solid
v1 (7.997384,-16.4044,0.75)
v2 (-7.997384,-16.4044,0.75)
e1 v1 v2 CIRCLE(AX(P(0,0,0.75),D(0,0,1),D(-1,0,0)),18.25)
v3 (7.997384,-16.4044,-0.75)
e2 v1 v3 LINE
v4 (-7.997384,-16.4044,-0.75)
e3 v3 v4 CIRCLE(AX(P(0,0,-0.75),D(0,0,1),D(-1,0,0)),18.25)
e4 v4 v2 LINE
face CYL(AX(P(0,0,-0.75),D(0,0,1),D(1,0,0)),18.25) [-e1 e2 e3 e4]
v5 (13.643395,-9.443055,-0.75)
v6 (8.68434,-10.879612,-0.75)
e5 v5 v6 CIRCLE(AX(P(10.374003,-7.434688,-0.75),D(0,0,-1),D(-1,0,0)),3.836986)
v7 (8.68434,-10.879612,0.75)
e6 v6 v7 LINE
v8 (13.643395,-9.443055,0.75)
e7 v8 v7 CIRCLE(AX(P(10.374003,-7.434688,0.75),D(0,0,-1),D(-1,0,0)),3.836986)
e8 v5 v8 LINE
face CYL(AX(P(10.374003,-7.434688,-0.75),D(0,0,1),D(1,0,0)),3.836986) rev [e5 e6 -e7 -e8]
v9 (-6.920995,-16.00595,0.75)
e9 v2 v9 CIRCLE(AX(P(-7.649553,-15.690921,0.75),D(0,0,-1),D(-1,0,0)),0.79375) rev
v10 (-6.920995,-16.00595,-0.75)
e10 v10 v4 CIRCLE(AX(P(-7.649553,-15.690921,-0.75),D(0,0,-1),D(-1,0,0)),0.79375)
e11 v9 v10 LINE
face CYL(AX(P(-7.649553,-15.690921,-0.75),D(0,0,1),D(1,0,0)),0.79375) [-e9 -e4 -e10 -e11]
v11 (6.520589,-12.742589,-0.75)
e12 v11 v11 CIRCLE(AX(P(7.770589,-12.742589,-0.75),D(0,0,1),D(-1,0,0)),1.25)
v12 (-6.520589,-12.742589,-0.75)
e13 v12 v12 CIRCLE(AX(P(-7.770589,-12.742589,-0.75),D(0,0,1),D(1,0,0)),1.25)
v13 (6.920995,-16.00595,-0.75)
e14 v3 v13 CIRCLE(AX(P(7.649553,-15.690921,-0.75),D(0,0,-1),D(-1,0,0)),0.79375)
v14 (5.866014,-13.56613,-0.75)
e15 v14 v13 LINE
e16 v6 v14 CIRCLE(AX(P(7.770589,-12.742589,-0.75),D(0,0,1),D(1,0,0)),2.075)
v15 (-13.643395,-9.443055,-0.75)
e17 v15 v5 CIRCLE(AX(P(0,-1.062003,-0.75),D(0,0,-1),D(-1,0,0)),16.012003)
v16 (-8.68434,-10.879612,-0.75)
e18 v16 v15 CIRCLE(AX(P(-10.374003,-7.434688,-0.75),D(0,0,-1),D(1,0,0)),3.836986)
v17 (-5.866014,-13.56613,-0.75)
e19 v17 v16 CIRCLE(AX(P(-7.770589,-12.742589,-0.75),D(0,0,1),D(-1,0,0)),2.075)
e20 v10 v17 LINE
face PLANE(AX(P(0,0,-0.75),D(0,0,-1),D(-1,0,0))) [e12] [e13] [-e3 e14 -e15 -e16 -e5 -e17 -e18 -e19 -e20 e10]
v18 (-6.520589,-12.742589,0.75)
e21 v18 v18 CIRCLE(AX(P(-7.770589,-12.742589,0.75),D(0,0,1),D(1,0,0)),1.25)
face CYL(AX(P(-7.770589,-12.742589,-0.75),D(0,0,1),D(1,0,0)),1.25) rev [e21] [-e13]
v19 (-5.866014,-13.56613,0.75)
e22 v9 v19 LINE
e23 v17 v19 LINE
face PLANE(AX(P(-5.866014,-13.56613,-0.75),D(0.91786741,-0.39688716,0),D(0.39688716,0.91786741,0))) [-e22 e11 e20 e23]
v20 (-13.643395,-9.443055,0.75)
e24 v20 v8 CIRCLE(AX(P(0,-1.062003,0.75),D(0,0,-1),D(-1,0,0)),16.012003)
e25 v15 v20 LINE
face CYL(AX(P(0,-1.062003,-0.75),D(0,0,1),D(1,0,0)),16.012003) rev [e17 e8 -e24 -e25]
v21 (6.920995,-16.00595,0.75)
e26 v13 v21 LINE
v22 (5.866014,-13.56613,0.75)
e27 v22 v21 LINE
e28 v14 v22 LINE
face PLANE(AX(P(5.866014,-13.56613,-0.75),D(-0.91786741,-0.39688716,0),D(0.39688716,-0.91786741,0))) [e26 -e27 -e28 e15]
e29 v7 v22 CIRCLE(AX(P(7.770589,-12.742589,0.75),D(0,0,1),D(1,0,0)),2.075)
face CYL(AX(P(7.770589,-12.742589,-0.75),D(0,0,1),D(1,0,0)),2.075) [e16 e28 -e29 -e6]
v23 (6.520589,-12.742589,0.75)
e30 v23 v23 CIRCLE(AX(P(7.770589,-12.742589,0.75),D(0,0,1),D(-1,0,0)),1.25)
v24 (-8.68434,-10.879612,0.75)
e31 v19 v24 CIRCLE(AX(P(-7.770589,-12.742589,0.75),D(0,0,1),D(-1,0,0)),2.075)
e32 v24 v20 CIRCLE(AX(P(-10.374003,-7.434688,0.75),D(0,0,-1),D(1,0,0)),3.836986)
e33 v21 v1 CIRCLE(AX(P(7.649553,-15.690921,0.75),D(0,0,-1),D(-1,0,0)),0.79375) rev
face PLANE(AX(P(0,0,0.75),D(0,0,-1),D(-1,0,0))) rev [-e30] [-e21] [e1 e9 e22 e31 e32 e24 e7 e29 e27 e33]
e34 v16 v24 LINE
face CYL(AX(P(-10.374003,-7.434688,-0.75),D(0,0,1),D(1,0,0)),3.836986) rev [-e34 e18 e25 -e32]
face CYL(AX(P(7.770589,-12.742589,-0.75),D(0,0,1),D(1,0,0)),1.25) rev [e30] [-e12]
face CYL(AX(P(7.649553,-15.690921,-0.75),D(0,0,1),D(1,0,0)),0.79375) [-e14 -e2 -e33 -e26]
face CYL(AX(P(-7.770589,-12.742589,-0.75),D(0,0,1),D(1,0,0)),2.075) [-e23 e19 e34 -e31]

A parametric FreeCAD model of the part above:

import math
import FreeCAD as App
import Part
import Sketcher

V = App.Vector


def edges_at(feature, points):
    """Names of the edges that pass closest to the given points."""
    edges = feature.Shape.Edges
    near = lambda p: min(range(len(edges)), key=lambda i: edges[i].distToShape(Part.Vertex(*p))[0])
    return sorted({f"Edge{near(p) + 1}" for p in points})

doc = App.newDocument("Part")
body = doc.addObject("PartDesign::Body", "Body")

# Sketch on XY plane
sketch1 = body.newObject("Sketcher::SketchObject", "Sketch")
sketch1.AttachmentSupport = (doc.getObject("XY_Plane"), [""])
sketch1.MapMode = "FlatFace"
sketch1.addGeometry(Part.LineSegment(V(-7.2, -16.8, 0), V(-5.9, -13.6, 0)), False)
sketch1.addGeometry(Part.ArcOfCircle(Part.Circle(V(-7.8, -12.7, 0), V(0, 0, 1), 2.1), math.radians(-23), math.radians(116)), False)
sketch1.addGeometry(Part.ArcOfCircle(Part.Circle(V(-10.4, -7.4, 0), V(0, 0, 1), 3.8), math.radians(-148), math.radians(-64)), False)
sketch1.addGeometry(Part.ArcOfCircle(Part.Circle(V(0, -1.1, 0), V(0, 0, 1), 16), math.radians(-32), math.radians(212)), False)
sketch1.addGeometry(Part.ArcOfCircle(Part.Circle(V(10.4, -7.4, 0), V(0, 0, 1), 3.8), math.radians(-116), math.radians(-32)), False)
sketch1.addGeometry(Part.ArcOfCircle(Part.Circle(V(7.8, -12.7, 0), V(0, 0, 1), 2.1), math.radians(64), math.radians(203)), False)
sketch1.addGeometry(Part.LineSegment(V(5.9, -13.6, 0), V(7.2, -16.8, 0)), False)
sketch1.addGeometry(Part.ArcOfCircle(Part.Circle(V(0, 0, 0), V(0, 0, 1), 18.2), math.radians(-67), math.radians(247)), False)
sketch1.addGeometry(Part.Circle(V(7.8, -12.7, 0), V(0, 0, 1), 1.2), False)
sketch1.addGeometry(Part.Circle(V(-7.8, -12.7, 0), V(0, 0, 1), 1.2), False)
sketch1.addConstraint(Sketcher.Constraint("Tangent", 0, 2, 1, 1))
sketch1.addConstraint(Sketcher.Constraint("Tangent", 1, 2, 2, 2))
sketch1.addConstraint(Sketcher.Constraint("Tangent", 2, 1, 3, 2))
sketch1.addConstraint(Sketcher.Constraint("Tangent", 3, 1, 4, 2))
sketch1.addConstraint(Sketcher.Constraint("Tangent", 4, 1, 5, 1))
sketch1.addConstraint(Sketcher.Constraint("Tangent", 5, 2, 6, 1))
sketch1.addConstraint(Sketcher.Constraint("Coincident", 6, 2, 7, 1))
sketch1.addConstraint(Sketcher.Constraint("Coincident", 7, 2, 0, 1))
sketch1.addConstraint(Sketcher.Constraint("Coincident", 7, 3, -1, 1))
sketch1.addConstraint(Sketcher.Constraint("Coincident", 8, 3, 5, 3))
sketch1.addConstraint(Sketcher.Constraint("Coincident", 9, 3, 1, 3))
sketch1.addConstraint(Sketcher.Constraint("Equal", 2, 4))
sketch1.addConstraint(Sketcher.Constraint("Equal", 1, 5))
sketch1.addConstraint(Sketcher.Constraint("Equal", 8, 9))
sketch1.addConstraint(Sketcher.Constraint("Symmetric", 2, 3, 4, 3, -2))
sketch1.addConstraint(Sketcher.Constraint("Symmetric", 0, 2, 5, 2, -2))
sketch1.addConstraint(Sketcher.Constraint("Diameter", 8, 2.5))
sketch1.addConstraint(Sketcher.Constraint("Radius", 7, 18.25))
sketch1.addConstraint(Sketcher.Constraint("Radius", 1, 2.075))
sketch1.addConstraint(Sketcher.Constraint("Radius", 2, 3.836986))
sketch1.addConstraint(Sketcher.Constraint("Radius", 3, 16.012003))
sketch1.addConstraint(Sketcher.Constraint("DistanceY", 1, 3, 2, 3, 5.307901))
sketch1.addConstraint(Sketcher.Constraint("DistanceX", 1, 3, -1, 1, 7.770589))
sketch1.addConstraint(Sketcher.Constraint("DistanceY", 1, 3, -1, 1, 12.742589))
sketch1.addConstraint(Sketcher.Constraint("DistanceY", 0, 2, -1, 1, 13.56613))
pad1 = body.newObject("PartDesign::Pad", "Pad")
pad1.Profile = sketch1
pad1.Type = "TwoLengths"
pad1.Length = 0.75
pad1.Length2 = 0.75
doc.recompute()

fillet = body.newObject("PartDesign::Fillet", "Fillet")
fillet.Base = (pad1, edges_at(pad1, [(7.243, -16.751, 0), (-7.243, -16.751, 0)]))
fillet.Radius = 0.79375

doc.recompute()
